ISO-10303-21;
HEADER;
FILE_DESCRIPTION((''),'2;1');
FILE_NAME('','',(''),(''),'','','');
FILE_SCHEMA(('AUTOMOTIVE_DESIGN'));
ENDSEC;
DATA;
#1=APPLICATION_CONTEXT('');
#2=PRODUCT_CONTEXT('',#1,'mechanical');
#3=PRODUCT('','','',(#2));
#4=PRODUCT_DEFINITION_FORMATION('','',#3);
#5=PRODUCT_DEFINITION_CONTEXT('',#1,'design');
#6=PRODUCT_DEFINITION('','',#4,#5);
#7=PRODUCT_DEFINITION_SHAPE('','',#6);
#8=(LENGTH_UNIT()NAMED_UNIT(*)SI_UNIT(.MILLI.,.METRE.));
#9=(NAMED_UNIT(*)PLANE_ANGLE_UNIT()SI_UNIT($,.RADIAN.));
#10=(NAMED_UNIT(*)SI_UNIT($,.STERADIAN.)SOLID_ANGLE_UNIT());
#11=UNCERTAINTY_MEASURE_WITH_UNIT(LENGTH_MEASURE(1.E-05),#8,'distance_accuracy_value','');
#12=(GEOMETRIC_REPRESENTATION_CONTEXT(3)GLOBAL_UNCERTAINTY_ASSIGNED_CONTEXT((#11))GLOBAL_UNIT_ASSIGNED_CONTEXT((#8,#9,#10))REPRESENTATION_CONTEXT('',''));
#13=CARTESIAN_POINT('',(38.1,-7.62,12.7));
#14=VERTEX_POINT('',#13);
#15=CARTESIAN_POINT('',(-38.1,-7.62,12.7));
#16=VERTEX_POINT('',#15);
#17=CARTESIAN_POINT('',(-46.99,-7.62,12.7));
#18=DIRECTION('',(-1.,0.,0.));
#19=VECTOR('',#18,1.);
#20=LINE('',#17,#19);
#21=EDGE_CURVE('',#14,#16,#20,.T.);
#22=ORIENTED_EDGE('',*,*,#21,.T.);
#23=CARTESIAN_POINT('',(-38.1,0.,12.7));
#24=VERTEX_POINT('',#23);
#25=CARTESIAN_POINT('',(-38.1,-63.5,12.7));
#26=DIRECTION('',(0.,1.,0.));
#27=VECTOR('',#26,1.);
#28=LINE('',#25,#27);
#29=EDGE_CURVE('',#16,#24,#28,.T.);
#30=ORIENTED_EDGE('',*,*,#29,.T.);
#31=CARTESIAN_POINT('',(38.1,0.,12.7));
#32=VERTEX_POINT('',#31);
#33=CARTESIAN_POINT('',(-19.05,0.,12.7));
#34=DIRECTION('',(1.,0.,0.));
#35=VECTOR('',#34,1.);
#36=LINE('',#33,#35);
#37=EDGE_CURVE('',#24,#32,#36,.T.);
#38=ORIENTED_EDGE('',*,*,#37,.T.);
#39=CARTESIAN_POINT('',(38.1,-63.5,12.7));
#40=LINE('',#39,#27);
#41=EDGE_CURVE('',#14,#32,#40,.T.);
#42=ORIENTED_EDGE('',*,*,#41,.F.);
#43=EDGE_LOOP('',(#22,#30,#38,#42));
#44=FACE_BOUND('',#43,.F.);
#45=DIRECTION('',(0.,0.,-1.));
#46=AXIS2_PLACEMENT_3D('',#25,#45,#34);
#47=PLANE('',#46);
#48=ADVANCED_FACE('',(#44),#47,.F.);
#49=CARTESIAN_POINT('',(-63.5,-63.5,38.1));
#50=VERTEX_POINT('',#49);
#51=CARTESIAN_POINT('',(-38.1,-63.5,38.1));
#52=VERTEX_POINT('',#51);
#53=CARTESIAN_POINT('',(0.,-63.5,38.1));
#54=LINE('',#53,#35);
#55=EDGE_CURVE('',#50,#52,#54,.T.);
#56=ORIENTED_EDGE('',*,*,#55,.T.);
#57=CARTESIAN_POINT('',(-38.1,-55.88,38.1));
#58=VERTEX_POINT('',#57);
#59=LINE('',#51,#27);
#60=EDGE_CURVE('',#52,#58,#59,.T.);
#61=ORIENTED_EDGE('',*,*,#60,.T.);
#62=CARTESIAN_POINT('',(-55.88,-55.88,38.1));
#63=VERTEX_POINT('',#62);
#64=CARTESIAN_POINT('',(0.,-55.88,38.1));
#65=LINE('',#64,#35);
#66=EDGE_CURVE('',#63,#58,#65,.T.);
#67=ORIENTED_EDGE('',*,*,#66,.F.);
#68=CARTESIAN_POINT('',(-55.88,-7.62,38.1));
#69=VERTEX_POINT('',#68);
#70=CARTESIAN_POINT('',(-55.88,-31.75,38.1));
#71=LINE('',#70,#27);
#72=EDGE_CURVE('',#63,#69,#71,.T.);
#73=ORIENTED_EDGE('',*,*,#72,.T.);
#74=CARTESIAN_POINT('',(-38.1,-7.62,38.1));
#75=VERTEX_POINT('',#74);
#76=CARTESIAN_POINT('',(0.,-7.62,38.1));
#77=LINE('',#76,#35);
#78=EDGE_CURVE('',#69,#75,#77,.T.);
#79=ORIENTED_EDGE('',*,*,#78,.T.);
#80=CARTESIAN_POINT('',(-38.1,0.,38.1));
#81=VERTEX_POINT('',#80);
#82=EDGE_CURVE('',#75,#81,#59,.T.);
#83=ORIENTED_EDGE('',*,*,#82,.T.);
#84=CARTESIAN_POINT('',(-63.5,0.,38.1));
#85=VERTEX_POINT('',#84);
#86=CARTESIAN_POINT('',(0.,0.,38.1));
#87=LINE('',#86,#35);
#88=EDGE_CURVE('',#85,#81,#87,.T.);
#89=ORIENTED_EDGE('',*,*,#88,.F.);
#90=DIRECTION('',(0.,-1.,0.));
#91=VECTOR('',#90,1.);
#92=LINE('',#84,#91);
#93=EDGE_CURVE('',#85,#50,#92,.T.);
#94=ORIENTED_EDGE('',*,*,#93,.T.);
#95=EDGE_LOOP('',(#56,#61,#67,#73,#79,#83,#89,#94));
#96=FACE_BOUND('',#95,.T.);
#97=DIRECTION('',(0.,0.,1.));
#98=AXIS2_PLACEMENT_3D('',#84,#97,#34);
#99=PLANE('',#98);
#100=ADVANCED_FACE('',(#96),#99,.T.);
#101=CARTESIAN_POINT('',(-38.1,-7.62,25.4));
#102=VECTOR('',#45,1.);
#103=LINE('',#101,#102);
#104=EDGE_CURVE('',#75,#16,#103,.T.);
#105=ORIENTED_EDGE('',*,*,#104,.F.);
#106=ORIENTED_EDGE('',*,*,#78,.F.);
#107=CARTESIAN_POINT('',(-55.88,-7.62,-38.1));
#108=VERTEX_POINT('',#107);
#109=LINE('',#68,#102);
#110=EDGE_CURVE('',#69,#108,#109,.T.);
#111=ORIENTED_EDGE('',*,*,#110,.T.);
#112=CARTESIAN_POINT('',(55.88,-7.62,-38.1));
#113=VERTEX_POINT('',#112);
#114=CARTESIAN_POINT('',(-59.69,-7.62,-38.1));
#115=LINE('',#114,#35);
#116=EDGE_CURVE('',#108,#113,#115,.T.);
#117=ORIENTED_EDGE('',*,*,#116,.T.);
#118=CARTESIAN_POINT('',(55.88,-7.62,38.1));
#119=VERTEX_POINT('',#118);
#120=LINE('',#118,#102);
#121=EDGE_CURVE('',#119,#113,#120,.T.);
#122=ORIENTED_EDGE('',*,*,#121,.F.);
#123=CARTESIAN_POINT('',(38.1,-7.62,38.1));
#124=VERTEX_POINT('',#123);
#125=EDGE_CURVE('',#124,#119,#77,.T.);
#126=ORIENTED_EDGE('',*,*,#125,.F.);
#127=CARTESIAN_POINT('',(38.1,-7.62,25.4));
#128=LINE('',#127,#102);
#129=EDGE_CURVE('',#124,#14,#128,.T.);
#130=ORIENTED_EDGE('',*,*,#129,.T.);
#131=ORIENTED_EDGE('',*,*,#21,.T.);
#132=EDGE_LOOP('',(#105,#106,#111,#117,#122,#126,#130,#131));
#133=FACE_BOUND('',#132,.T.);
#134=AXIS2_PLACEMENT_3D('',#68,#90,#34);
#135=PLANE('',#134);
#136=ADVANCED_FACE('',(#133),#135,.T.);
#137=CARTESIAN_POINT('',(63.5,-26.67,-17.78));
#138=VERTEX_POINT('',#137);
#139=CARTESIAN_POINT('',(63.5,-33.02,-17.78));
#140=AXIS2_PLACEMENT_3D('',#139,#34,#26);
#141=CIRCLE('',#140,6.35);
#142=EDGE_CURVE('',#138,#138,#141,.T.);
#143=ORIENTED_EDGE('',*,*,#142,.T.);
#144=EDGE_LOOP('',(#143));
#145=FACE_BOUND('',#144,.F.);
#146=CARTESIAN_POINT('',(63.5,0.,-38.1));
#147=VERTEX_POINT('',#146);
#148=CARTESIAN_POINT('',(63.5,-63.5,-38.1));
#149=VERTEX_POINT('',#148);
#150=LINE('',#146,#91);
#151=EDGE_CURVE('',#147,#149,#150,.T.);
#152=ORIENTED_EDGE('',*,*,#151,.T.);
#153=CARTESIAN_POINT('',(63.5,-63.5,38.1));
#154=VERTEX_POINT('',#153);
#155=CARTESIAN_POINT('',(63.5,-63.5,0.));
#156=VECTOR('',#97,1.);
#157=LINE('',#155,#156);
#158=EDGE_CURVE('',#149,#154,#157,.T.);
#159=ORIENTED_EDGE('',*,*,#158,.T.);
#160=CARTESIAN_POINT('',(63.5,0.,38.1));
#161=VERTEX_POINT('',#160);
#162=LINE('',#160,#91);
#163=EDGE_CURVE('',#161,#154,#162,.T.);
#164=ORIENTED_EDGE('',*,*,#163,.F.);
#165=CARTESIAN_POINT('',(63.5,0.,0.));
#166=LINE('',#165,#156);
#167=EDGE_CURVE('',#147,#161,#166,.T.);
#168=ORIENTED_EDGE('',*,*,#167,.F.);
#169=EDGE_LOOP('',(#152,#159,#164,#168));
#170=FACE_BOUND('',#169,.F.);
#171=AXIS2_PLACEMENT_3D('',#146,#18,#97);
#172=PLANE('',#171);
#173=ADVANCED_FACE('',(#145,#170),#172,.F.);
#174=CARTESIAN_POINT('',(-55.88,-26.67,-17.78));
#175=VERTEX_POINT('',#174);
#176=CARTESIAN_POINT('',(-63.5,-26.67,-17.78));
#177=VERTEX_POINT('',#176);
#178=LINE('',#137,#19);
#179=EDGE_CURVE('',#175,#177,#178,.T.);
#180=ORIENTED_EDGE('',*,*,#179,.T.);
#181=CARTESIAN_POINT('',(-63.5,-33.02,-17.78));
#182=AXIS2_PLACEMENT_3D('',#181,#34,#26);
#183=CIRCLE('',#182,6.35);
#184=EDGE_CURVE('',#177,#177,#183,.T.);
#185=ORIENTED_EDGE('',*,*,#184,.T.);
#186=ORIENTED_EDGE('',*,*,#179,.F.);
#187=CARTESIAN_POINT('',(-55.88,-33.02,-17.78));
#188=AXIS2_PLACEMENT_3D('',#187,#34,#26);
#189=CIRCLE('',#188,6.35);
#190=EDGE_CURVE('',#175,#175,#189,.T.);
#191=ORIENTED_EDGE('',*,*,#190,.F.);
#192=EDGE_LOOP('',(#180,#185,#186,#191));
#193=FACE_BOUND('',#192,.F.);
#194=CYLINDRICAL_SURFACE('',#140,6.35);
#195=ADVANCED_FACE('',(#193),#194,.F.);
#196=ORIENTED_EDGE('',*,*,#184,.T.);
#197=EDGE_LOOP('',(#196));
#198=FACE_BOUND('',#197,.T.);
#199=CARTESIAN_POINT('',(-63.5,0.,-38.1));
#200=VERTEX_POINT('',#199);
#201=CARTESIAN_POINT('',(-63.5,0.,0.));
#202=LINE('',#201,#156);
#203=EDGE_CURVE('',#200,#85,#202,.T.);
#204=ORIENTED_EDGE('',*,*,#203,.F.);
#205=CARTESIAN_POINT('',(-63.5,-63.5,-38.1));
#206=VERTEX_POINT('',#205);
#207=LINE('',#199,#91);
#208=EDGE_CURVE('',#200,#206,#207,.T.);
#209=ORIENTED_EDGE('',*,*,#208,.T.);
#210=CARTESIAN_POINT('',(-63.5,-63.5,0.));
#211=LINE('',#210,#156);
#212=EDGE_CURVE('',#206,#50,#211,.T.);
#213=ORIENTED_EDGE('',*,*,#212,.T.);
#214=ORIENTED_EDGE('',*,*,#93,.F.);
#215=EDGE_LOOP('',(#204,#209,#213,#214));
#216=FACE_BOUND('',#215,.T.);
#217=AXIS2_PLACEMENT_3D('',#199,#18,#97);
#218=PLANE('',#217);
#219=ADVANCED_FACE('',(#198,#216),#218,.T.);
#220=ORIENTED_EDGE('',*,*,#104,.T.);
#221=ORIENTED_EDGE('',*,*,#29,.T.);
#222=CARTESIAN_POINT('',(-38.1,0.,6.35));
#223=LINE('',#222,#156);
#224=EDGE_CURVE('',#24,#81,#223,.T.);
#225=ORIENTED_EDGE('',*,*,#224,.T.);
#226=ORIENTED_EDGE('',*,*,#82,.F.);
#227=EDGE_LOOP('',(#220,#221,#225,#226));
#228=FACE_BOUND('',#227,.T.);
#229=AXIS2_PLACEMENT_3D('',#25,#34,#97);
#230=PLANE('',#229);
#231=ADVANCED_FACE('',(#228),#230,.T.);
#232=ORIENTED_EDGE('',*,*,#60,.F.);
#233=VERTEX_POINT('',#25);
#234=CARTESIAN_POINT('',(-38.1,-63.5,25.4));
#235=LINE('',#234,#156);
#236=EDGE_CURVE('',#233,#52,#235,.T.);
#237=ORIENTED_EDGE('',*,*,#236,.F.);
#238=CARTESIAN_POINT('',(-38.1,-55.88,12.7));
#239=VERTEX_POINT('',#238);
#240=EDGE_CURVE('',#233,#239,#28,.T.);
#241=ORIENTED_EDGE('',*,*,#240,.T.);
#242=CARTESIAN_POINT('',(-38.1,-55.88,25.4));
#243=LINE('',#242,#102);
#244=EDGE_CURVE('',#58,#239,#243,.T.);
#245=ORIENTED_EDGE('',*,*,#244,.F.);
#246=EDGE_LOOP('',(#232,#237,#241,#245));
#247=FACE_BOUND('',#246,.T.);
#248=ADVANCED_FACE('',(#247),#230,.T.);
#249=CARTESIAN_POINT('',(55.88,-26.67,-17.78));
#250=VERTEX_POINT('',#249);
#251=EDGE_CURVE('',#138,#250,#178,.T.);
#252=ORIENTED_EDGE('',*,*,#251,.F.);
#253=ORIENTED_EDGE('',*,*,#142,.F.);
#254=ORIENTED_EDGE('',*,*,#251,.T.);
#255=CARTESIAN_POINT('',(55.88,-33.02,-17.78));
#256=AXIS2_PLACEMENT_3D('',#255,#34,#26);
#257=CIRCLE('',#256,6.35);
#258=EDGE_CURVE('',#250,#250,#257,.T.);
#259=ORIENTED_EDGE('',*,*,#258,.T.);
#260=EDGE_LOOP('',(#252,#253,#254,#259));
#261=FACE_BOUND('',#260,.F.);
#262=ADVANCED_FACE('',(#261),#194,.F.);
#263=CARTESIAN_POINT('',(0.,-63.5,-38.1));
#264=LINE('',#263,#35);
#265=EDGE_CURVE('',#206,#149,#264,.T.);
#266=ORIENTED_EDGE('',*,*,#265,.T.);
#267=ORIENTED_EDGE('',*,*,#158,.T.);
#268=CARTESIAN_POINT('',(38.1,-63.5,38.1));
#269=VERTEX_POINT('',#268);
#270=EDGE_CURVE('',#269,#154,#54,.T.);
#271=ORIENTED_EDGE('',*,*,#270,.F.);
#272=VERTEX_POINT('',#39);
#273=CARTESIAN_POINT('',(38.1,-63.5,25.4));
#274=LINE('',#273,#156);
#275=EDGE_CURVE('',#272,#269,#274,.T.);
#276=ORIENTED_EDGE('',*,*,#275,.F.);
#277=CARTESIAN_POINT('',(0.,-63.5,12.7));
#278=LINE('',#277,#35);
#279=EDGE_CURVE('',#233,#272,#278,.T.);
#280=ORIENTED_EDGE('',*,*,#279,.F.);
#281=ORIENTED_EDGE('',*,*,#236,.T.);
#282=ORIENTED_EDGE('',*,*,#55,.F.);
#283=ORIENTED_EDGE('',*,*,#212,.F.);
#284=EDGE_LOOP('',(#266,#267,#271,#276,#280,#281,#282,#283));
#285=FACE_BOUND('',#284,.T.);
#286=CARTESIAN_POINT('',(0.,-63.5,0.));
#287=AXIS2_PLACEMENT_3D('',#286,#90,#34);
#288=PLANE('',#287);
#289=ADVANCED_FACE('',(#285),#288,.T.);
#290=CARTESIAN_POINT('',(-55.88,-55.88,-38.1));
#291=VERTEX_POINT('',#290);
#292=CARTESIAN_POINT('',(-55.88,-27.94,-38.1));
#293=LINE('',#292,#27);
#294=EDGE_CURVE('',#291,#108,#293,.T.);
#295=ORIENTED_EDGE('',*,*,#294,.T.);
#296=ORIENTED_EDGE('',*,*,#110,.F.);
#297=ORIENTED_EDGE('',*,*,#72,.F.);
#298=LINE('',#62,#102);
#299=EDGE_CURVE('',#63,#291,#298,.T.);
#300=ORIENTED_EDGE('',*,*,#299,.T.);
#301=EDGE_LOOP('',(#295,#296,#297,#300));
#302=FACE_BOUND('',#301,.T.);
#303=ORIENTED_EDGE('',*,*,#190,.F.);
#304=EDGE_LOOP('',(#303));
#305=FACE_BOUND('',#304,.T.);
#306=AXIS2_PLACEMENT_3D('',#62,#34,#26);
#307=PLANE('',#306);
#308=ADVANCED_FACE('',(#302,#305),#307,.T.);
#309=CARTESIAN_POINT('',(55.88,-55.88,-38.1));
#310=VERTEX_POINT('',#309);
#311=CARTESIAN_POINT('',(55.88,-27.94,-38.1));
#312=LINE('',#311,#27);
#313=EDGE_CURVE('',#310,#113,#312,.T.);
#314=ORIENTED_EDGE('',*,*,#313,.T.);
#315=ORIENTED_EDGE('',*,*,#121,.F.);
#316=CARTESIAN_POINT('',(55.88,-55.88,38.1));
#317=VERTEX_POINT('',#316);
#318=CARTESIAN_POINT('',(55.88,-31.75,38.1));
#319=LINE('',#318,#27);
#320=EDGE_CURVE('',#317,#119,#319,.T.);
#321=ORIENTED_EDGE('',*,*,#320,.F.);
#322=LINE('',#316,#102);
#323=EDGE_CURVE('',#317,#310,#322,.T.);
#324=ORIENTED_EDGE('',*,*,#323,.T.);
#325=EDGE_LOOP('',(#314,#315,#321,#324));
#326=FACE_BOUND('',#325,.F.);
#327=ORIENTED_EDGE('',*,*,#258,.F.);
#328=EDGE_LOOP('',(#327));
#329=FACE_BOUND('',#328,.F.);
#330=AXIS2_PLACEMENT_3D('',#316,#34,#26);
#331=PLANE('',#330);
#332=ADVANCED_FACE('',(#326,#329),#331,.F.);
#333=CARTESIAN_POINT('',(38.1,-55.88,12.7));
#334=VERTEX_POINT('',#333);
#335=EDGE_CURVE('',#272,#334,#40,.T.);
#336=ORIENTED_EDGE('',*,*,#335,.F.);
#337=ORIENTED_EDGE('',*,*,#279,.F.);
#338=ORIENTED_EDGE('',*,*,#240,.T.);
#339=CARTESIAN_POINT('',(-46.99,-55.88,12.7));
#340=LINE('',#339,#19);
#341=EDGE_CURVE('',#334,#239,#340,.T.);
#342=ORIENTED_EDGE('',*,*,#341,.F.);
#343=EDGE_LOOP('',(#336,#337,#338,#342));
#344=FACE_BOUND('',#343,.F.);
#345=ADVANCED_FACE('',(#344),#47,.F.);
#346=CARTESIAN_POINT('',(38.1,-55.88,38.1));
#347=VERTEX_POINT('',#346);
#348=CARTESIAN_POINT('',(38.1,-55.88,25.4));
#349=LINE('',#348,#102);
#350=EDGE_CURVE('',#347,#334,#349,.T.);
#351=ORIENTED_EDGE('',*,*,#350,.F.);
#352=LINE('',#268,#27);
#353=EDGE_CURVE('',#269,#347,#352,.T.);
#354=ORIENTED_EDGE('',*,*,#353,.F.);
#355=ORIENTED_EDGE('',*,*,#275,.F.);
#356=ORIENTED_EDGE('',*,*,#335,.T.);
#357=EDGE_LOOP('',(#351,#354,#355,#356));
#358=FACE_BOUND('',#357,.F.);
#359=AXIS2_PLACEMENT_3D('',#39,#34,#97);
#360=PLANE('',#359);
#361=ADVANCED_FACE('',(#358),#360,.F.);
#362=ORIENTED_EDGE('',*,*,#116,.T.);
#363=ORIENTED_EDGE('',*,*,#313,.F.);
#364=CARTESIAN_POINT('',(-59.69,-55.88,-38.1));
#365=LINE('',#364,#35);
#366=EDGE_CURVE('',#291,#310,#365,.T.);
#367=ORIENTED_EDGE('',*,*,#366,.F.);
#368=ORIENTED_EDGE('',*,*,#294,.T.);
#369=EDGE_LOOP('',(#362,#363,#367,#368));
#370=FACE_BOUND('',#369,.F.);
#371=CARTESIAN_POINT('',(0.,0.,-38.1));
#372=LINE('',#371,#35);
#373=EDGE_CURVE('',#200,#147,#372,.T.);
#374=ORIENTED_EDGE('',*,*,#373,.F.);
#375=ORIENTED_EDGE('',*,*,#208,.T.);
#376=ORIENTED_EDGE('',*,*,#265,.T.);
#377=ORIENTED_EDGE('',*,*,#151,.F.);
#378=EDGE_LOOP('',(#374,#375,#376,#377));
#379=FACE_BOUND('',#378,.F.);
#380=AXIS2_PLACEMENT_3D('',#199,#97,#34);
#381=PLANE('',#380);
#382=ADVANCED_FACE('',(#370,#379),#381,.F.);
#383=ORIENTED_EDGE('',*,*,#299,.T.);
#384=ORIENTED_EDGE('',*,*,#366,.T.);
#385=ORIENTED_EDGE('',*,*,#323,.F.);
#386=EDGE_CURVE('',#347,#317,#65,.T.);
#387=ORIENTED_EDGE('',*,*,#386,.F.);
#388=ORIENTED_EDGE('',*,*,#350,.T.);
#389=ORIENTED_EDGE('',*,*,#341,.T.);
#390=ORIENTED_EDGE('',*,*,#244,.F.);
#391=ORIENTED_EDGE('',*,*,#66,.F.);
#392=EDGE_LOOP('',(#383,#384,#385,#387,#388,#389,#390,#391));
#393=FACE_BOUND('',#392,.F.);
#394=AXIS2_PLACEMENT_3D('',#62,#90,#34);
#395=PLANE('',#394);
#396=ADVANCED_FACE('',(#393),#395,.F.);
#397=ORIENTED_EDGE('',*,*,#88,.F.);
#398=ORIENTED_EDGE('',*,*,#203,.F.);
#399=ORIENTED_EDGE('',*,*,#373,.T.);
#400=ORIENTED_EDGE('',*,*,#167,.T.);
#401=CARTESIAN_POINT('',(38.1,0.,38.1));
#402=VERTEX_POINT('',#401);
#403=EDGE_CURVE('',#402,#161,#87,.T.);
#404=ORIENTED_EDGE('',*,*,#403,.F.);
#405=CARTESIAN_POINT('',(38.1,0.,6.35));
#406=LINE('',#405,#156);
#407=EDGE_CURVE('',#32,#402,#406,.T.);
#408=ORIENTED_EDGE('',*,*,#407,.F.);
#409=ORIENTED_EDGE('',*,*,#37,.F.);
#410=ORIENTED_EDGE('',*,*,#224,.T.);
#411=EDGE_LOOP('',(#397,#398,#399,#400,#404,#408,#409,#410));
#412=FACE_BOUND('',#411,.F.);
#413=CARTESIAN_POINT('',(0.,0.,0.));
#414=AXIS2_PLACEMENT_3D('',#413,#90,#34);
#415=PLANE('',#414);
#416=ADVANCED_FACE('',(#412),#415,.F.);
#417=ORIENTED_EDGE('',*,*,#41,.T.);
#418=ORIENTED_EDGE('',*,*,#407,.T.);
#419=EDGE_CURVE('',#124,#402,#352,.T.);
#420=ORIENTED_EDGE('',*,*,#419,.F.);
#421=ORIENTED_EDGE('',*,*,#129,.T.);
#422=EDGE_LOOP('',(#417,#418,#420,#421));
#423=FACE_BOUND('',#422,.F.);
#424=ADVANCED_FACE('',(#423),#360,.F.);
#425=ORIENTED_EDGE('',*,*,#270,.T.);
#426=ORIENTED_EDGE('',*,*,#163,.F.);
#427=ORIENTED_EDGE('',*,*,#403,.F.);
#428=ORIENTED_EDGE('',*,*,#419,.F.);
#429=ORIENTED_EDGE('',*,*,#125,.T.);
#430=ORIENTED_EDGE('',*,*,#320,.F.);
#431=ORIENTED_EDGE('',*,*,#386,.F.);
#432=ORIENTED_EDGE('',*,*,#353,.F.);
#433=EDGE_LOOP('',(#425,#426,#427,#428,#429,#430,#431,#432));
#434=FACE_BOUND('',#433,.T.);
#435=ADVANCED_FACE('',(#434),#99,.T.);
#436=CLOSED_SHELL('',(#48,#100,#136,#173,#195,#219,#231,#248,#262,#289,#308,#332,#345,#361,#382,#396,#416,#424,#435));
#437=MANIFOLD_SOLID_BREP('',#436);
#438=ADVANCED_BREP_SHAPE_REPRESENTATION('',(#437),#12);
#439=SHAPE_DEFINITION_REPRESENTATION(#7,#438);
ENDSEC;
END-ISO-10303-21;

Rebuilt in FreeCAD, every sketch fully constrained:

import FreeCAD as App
import Part
import Sketcher
Q = App.Units.Quantity

doc = App.newDocument("Part")
body = doc.addObject("PartDesign::Body", "Body")

sketch1 = doc.addObject("Sketcher::SketchObject", "Sketch")
body.addObject(sketch1)
sketch1.AttachmentSupport = (doc.XZ_Plane, [""])
sketch1.MapMode = "FlatFace"
sketch1.addGeometry([
    Part.LineSegment(App.Vector(-63.5, 38.1, 0), App.Vector(-63.5, -38.1, 0)),
    Part.LineSegment(App.Vector(-63.5, -38.1, 0), App.Vector(63.5, -38.1, 0)),
    Part.LineSegment(App.Vector(63.5, -38.1, 0), App.Vector(63.5, 38.1, 0)),
    Part.LineSegment(App.Vector(63.5, 38.1, 0), App.Vector(-63.5, 38.1, 0)),
], False)
sketch1.addConstraint([
    Sketcher.Constraint("Coincident", 0, 2, 1, 1),
    Sketcher.Constraint("Coincident", 1, 2, 2, 1),
    Sketcher.Constraint("Coincident", 2, 2, 3, 1),
    Sketcher.Constraint("Coincident", 3, 2, 0, 1),
    Sketcher.Constraint("Vertical", 0),
    Sketcher.Constraint("Horizontal", 1),
    Sketcher.Constraint("Vertical", 2),
    Sketcher.Constraint("Horizontal", 3),
    Sketcher.Constraint("Symmetric", 0, 2, 2, 2, -1, 1),
    Sketcher.Constraint("DistanceX", 1, 1, 1, 2, Q("5 in")),
    Sketcher.Constraint("DistanceY", 0, 2, 0, 1, Q("3 in")),
])
pad1 = doc.addObject("PartDesign::Pad", "Pad")
body.addObject(pad1)
pad1.Profile = sketch1
pad1.Length = Q("2.5 in")

sketch2 = doc.addObject("Sketcher::SketchObject", "Sketch001")
body.addObject(sketch2)
sketch2.AttachmentSupport = (doc.XZ_Plane, [""])
sketch2.MapMode = "FlatFace"
sketch2.AttachmentOffset = App.Placement(App.Vector(0, 0, 2.5 * 25.4), App.Rotation())
sketch2.addGeometry([
    Part.LineSegment(App.Vector(-38.1, 38.1, 0), App.Vector(-38.1, 12.7, 0)),
    Part.LineSegment(App.Vector(-38.1, 12.7, 0), App.Vector(38.1, 12.7, 0)),
    Part.LineSegment(App.Vector(38.1, 12.7, 0), App.Vector(38.1, 38.1, 0)),
    Part.LineSegment(App.Vector(38.1, 38.1, 0), App.Vector(-38.1, 38.1, 0)),
], False)
sketch2.addConstraint([
    Sketcher.Constraint("Coincident", 0, 2, 1, 1),
    Sketcher.Constraint("Coincident", 1, 2, 2, 1),
    Sketcher.Constraint("Coincident", 2, 2, 3, 1),
    Sketcher.Constraint("Coincident", 3, 2, 0, 1),
    Sketcher.Constraint("Vertical", 0),
    Sketcher.Constraint("Horizontal", 1),
    Sketcher.Constraint("Vertical", 2),
    Sketcher.Constraint("Horizontal", 3),
    Sketcher.Constraint("DistanceX", 1, 1, 1, 2, Q("3 in")),
    Sketcher.Constraint("DistanceY", 0, 2, 0, 1, Q("1 in")),
    Sketcher.Constraint("DistanceX", 0, 2, -1, 1, Q("1.5 in")),
    Sketcher.Constraint("DistanceY", -1, 1, 0, 2, Q("0.5 in")),
])
pocket1 = doc.addObject("PartDesign::Pocket", "Pocket")
body.addObject(pocket1)
pocket1.Profile = sketch2
pocket1.Length = Q("2.96 in")

sketch3 = doc.addObject("Sketcher::SketchObject", "Sketch002")
body.addObject(sketch3)
sketch3.AttachmentSupport = (doc.XY_Plane, [""])
sketch3.MapMode = "FlatFace"
sketch3.AttachmentOffset = App.Placement(App.Vector(0, 0, 1.5 * 25.4), App.Rotation())
sketch3.addGeometry([
    Part.LineSegment(App.Vector(-55.88, -7.62, 0), App.Vector(-55.88, -55.88, 0)),
    Part.LineSegment(App.Vector(-55.88, -55.88, 0), App.Vector(55.88, -55.88, 0)),
    Part.LineSegment(App.Vector(55.88, -55.88, 0), App.Vector(55.88, -7.62, 0)),
    Part.LineSegment(App.Vector(55.88, -7.62, 0), App.Vector(-55.88, -7.62, 0)),
], False)
sketch3.addConstraint([
    Sketcher.Constraint("Coincident", 0, 2, 1, 1),
    Sketcher.Constraint("Coincident", 1, 2, 2, 1),
    Sketcher.Constraint("Coincident", 2, 2, 3, 1),
    Sketcher.Constraint("Coincident", 3, 2, 0, 1),
    Sketcher.Constraint("Vertical", 0),
    Sketcher.Constraint("Horizontal", 1),
    Sketcher.Constraint("Vertical", 2),
    Sketcher.Constraint("Horizontal", 3),
    Sketcher.Constraint("DistanceX", 1, 1, 1, 2, Q("4.4 in")),
    Sketcher.Constraint("DistanceY", 0, 2, 0, 1, Q("1.9 in")),
    Sketcher.Constraint("DistanceX", 0, 2, -1, 1, Q("2.2 in")),
    Sketcher.Constraint("DistanceY", 0, 2, -1, 1, Q("2.2 in")),
])
pocket2 = doc.addObject("PartDesign::Pocket", "Pocket001")
body.addObject(pocket2)
pocket2.Profile = sketch3
pocket2.Length = Q("3.42 in")

sketch4 = doc.addObject("Sketcher::SketchObject", "Sketch003")
body.addObject(sketch4)
sketch4.AttachmentSupport = (doc.YZ_Plane, [""])
sketch4.MapMode = "FlatFace"
sketch4.AttachmentOffset = App.Placement(App.Vector(0, 0, 2.5 * 25.4), App.Rotation())
sketch4.addGeometry(Part.Circle(App.Vector(-33.02, -17.78, 0), App.Vector(0, 0, 1), 6.35), False)
sketch4.addConstraint([
    Sketcher.Constraint("Diameter", 0, Q("0.5 in")),
    Sketcher.Constraint("DistanceX", 0, 3, -1, 1, Q("1.3 in")),
    Sketcher.Constraint("DistanceY", 0, 3, -1, 1, Q("0.7 in")),
])
pocket3 = doc.addObject("PartDesign::Pocket", "Pocket002")
body.addObject(pocket3)
pocket3.Profile = sketch4
pocket3.Length = Q("5.62 in")

doc.recompute()
